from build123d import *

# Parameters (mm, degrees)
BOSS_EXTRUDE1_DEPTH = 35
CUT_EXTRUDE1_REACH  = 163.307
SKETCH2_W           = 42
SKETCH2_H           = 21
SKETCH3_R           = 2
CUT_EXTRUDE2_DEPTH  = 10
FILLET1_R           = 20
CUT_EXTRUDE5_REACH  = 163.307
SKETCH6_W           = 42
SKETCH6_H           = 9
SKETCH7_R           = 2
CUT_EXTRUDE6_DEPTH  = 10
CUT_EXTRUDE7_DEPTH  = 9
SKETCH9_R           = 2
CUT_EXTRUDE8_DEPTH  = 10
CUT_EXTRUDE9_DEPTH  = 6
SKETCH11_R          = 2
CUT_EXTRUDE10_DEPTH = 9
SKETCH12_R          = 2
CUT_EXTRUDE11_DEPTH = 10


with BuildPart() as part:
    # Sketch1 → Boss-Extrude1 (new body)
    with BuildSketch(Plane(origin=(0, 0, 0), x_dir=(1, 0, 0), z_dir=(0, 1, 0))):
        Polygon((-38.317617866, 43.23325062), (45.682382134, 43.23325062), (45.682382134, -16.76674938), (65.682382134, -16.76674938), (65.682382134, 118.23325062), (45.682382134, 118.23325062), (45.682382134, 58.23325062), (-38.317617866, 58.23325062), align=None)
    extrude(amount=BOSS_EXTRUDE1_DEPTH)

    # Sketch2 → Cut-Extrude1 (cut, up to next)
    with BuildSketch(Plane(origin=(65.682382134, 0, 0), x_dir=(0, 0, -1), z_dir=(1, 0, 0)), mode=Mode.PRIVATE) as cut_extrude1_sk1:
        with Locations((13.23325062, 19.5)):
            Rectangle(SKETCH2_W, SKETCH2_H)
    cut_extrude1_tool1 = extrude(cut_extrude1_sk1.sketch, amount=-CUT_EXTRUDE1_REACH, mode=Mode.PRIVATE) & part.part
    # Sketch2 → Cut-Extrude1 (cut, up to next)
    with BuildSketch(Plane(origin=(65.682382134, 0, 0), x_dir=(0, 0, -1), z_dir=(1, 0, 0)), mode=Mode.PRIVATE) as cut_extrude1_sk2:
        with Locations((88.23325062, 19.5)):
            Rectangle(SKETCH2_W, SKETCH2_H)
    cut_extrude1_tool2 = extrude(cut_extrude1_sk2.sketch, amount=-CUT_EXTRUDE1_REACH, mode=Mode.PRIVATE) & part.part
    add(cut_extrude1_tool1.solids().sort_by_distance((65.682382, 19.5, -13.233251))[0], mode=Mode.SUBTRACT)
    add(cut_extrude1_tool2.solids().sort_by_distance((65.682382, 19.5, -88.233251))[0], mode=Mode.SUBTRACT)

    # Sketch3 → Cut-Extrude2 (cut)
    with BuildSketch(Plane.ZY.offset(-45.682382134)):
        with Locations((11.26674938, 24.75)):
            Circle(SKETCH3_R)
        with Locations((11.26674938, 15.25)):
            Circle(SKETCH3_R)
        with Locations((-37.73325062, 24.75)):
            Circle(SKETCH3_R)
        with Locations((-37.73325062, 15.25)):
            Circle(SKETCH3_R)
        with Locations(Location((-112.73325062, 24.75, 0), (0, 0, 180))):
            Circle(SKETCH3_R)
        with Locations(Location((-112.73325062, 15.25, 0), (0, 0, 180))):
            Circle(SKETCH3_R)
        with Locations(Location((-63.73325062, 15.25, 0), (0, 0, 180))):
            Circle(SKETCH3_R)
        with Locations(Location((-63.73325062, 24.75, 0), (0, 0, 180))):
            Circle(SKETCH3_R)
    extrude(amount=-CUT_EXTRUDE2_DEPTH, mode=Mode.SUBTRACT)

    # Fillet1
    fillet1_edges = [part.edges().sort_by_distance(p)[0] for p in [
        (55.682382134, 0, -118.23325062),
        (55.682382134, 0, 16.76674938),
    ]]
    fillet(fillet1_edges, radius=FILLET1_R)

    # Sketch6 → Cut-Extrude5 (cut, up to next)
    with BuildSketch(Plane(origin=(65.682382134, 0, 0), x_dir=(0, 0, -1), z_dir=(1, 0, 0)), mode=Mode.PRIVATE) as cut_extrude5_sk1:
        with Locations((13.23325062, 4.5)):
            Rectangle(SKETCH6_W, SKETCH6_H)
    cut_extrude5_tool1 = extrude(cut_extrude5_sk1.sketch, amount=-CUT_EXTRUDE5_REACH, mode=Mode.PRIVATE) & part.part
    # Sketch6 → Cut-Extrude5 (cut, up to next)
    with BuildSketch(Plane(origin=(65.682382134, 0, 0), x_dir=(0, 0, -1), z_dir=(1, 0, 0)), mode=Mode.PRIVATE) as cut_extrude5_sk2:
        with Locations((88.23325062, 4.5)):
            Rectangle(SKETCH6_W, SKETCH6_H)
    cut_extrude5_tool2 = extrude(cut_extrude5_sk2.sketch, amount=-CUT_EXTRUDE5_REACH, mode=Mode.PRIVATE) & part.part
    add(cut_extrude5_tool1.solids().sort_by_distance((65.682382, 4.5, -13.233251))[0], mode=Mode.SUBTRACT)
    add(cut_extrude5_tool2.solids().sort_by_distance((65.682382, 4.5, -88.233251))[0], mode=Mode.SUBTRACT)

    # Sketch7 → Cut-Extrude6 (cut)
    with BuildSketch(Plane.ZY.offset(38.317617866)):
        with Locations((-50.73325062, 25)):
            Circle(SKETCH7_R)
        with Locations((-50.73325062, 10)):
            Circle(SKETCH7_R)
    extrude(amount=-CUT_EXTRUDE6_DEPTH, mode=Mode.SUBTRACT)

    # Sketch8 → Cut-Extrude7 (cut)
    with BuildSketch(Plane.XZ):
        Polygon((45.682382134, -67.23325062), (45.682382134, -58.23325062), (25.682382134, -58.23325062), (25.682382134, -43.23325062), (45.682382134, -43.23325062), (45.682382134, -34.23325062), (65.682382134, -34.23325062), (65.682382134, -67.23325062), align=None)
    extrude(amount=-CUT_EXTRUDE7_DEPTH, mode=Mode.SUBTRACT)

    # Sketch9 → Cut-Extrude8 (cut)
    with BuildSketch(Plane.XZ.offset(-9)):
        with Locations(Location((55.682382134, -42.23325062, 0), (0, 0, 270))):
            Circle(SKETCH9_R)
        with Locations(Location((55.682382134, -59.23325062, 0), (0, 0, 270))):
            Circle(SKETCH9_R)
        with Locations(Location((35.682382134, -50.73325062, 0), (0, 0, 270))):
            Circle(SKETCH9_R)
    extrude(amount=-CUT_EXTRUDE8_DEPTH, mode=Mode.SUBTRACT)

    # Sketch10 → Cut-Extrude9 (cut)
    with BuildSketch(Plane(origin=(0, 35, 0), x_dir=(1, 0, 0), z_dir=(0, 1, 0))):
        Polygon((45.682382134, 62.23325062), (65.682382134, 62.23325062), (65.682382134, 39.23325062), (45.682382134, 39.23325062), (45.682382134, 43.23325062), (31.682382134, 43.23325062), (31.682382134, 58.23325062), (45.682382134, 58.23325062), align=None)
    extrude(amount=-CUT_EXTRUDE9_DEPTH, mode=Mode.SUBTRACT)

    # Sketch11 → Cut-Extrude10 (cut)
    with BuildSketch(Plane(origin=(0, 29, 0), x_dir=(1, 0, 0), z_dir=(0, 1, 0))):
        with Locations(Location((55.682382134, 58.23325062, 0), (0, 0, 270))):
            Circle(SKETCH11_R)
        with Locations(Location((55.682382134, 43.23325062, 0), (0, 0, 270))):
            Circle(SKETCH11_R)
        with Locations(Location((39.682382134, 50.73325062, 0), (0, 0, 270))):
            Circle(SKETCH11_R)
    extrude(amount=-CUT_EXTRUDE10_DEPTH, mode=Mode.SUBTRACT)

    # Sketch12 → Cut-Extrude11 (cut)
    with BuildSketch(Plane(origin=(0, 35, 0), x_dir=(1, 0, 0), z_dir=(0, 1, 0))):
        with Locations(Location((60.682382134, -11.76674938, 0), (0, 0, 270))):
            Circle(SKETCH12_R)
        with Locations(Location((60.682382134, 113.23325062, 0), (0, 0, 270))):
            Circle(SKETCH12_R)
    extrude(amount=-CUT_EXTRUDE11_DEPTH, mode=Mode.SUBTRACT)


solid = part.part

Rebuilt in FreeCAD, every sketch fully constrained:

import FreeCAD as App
import Part
import Sketcher

V = App.Vector


def edges_at(feature, points):
    """Names of the edges that pass closest to the given points."""
    edges = feature.Shape.Edges
    near = lambda p: min(range(len(edges)), key=lambda i: edges[i].distToShape(Part.Vertex(*p))[0])
    return sorted({f"Edge{near(p) + 1}" for p in points})


def add_polygon(sketch, points):
    """Adds a closed chain of lines whose ends are joined by coincident constraints."""
    first, n = sketch.GeometryCount, len(points)
    for a, b in zip(points, points[1:] + points[:1]):
        sketch.addGeometry(Part.LineSegment(App.Vector(*a, 0), App.Vector(*b, 0)), False)
    for i in range(n):
        sketch.addConstraint(Sketcher.Constraint("Coincident", first + i, 2, first + (i + 1) % n, 1))

doc = App.newDocument("Part")
body = doc.addObject("PartDesign::Body", "Body")

# Sketch on XZ plane
sketch1 = doc.addObject("Sketcher::SketchObject", "Sketch")
body.addObject(sketch1)
sketch1.AttachmentSupport = (doc.XZ_Plane, [""])
sketch1.MapMode = "FlatFace"
add_polygon(sketch1, [(-38, -43), (46, -43), (46, 17), (66, 17), (66, -118), (46, -118), (46, -58), (-38, -58)])  # lines 0-7
sketch1.addConstraint(Sketcher.Constraint("Horizontal", 0))
sketch1.addConstraint(Sketcher.Constraint("Vertical", 1))
sketch1.addConstraint(Sketcher.Constraint("Horizontal", 2))
sketch1.addConstraint(Sketcher.Constraint("Vertical", 3))
sketch1.addConstraint(Sketcher.Constraint("Horizontal", 4))
sketch1.addConstraint(Sketcher.Constraint("Vertical", 5))
sketch1.addConstraint(Sketcher.Constraint("Horizontal", 6))
sketch1.addConstraint(Sketcher.Constraint("Vertical", 7))
sketch1.addConstraint(Sketcher.Constraint("Vertical", 1, 2, 4, 2))
sketch1.addConstraint(Sketcher.Constraint("Equal", 1, 5))
sketch1.addConstraint(Sketcher.Constraint("DistanceX", 0, 1, 0, 2, 84.0))
sketch1.addConstraint(Sketcher.Constraint("DistanceX", 2, 1, 2, 2, 20.0))
sketch1.addConstraint(Sketcher.Constraint("DistanceY", 1, 1, 1, 2, 60.0))
sketch1.addConstraint(Sketcher.Constraint("DistanceY", 3, 2, 3, 1, 135.0))
sketch1.addConstraint(Sketcher.Constraint("DistanceY", 0, 2, -1, 1, 43.233251))
sketch1.addConstraint(Sketcher.Constraint("DistanceX", -1, 1, 0, 2, 45.682382))
pad1 = doc.addObject("PartDesign::Pad", "Pad")
body.addObject(pad1)
pad1.Profile = sketch1
pad1.Length = 35
pad1.Reversed = True

# Sketch on YZ plane
sketch2 = doc.addObject("Sketcher::SketchObject", "Sketch001")
body.addObject(sketch2)
sketch2.AttachmentSupport = (doc.YZ_Plane, [""])
sketch2.MapMode = "FlatFace"
sketch2.AttachmentOffset = App.Placement(V(0, 0, 65.682382), App.Rotation())
add_polygon(sketch2, [(30, 8), (9, 8), (9, -34), (30, -34)])  # lines 0-3
sketch2.addConstraint(Sketcher.Constraint("Horizontal", 0))
sketch2.addConstraint(Sketcher.Constraint("Vertical", 1))
sketch2.addConstraint(Sketcher.Constraint("Horizontal", 2))
sketch2.addConstraint(Sketcher.Constraint("Vertical", 3))
sketch2.addConstraint(Sketcher.Constraint("DistanceX", 0, 2, 0, 1, 21.0))
sketch2.addConstraint(Sketcher.Constraint("DistanceY", 1, 2, 1, 1, 42.0))
sketch2.addConstraint(Sketcher.Constraint("DistanceX", -1, 1, 0, 2, 9.0))
sketch2.addConstraint(Sketcher.Constraint("DistanceY", -1, 1, 0, 2, 7.766749))
pocket1 = doc.addObject("PartDesign::Pocket", "Pocket")
body.addObject(pocket1)
pocket1.Profile = sketch2
pocket1.Type = "UpToFirst"

# Sketch on YZ plane
sketch3 = doc.addObject("Sketcher::SketchObject", "Sketch002")
body.addObject(sketch3)
sketch3.AttachmentSupport = (doc.YZ_Plane, [""])
sketch3.MapMode = "FlatFace"
sketch3.AttachmentOffset = App.Placement(V(0, 0, 65.682382), App.Rotation())
add_polygon(sketch3, [(30, -67), (9, -67), (9, -109), (30, -109)])  # lines 0-3
sketch3.addConstraint(Sketcher.Constraint("Horizontal", 0))
sketch3.addConstraint(Sketcher.Constraint("Vertical", 1))
sketch3.addConstraint(Sketcher.Constraint("Horizontal", 2))
sketch3.addConstraint(Sketcher.Constraint("Vertical", 3))
sketch3.addConstraint(Sketcher.Constraint("DistanceX", 0, 2, 0, 1, 21.0))
sketch3.addConstraint(Sketcher.Constraint("DistanceY", 1, 2, 1, 1, 42.0))
sketch3.addConstraint(Sketcher.Constraint("DistanceX", -1, 1, 0, 2, 9.0))
sketch3.addConstraint(Sketcher.Constraint("DistanceY", 0, 2, -1, 1, 67.233251))
pocket2 = doc.addObject("PartDesign::Pocket", "Pocket001")
body.addObject(pocket2)
pocket2.Profile = sketch3
pocket2.Type = "UpToFirst"

# Sketch on YZ plane
sketch4 = doc.addObject("Sketcher::SketchObject", "Sketch003")
body.addObject(sketch4)
sketch4.AttachmentSupport = (doc.YZ_Plane, [""])
sketch4.MapMode = "FlatFace"
sketch4.AttachmentOffset = App.Placement(V(0, 0, 45.682382), App.Rotation())
sketch4.addGeometry(Part.Circle(V(24.8, 11.3, 0), V(0, 0, 1), 2), False)
sketch4.addGeometry(Part.Circle(V(15.2, 11.3, 0), V(0, 0, 1), 2), False)
sketch4.addGeometry(Part.Circle(V(24.8, -37.7, 0), V(0, 0, 1), 2), False)
sketch4.addGeometry(Part.Circle(V(15.2, -37.7, 0), V(0, 0, 1), 2), False)
sketch4.addGeometry(Part.Circle(V(24.8, -112.7, 0), V(0, 0, 1), 2), False)
sketch4.addGeometry(Part.Circle(V(15.2, -112.7, 0), V(0, 0, 1), 2), False)
sketch4.addGeometry(Part.Circle(V(15.2, -63.7, 0), V(0, 0, 1), 2), False)
sketch4.addGeometry(Part.Circle(V(24.8, -63.7, 0), V(0, 0, 1), 2), False)
sketch4.addConstraint(Sketcher.Constraint("Equal", 0, 1))
sketch4.addConstraint(Sketcher.Constraint("Equal", 1, 2))
sketch4.addConstraint(Sketcher.Constraint("Equal", 2, 3))
sketch4.addConstraint(Sketcher.Constraint("Equal", 3, 4))
sketch4.addConstraint(Sketcher.Constraint("Equal", 4, 5))
sketch4.addConstraint(Sketcher.Constraint("Equal", 5, 6))
sketch4.addConstraint(Sketcher.Constraint("Equal", 6, 7))
sketch4.addConstraint(Sketcher.Constraint("Horizontal", 0, 3, 1, 3))
sketch4.addConstraint(Sketcher.Constraint("Horizontal", 2, 3, 3, 3))
sketch4.addConstraint(Sketcher.Constraint("Horizontal", 4, 3, 5, 3))
sketch4.addConstraint(Sketcher.Constraint("Horizontal", 6, 3, 7, 3))
sketch4.addConstraint(Sketcher.Constraint("Vertical", 0, 3, 2, 3))
sketch4.addConstraint(Sketcher.Constraint("Vertical", 1, 3, 3, 3))
sketch4.addConstraint(Sketcher.Constraint("Vertical", 2, 3, 4, 3))
sketch4.addConstraint(Sketcher.Constraint("Vertical", 3, 3, 5, 3))
sketch4.addConstraint(Sketcher.Constraint("Vertical", 5, 3, 6, 3))
sketch4.addConstraint(Sketcher.Constraint("Vertical", 4, 3, 7, 3))
sketch4.addConstraint(Sketcher.Constraint("Diameter", 0, 4.0))
sketch4.addConstraint(Sketcher.Constraint("DistanceY", 2, 3, 0, 3, 49.0))
sketch4.addConstraint(Sketcher.Constraint("DistanceY", 4, 3, 2, 3, 75.0))
sketch4.addConstraint(Sketcher.Constraint("DistanceY", 6, 3, 3, 3, 26.0))
sketch4.addConstraint(Sketcher.Constraint("DistanceX", 1, 3, 0, 3, 9.5))
sketch4.addConstraint(Sketcher.Constraint("DistanceX", -1, 1, 0, 3, 24.75))
sketch4.addConstraint(Sketcher.Constraint("DistanceY", -1, 1, 0, 3, 11.266749))
pocket3 = doc.addObject("PartDesign::Pocket", "Pocket002")
body.addObject(pocket3)
pocket3.Profile = sketch4
pocket3.Length = 10
pocket3.Reversed = True
doc.recompute()

fillet = doc.addObject("PartDesign::Fillet", "Fillet")
body.addObject(fillet)
fillet.Base = (pocket3, edges_at(pocket3, [(55.682, 0, -118.233), (55.682, 0, 16.767)]))
fillet.Radius = 20

# Sketch on YZ plane
sketch5 = doc.addObject("Sketcher::SketchObject", "Sketch004")
body.addObject(sketch5)
sketch5.AttachmentSupport = (doc.YZ_Plane, [""])
sketch5.MapMode = "FlatFace"
sketch5.AttachmentOffset = App.Placement(V(0, 0, 65.682382), App.Rotation())
add_polygon(sketch5, [(9, 8), (0, 8), (0, -34), (9, -34)])  # lines 0-3
sketch5.addConstraint(Sketcher.Constraint("Horizontal", 0))
sketch5.addConstraint(Sketcher.Constraint("Vertical", 1))
sketch5.addConstraint(Sketcher.Constraint("Horizontal", 2))
sketch5.addConstraint(Sketcher.Constraint("Vertical", 3))
sketch5.addConstraint(Sketcher.Constraint("PointOnObject", 0, 2, -2))
sketch5.addConstraint(Sketcher.Constraint("DistanceX", 0, 2, 0, 1, 9.0))
sketch5.addConstraint(Sketcher.Constraint("DistanceY", 1, 2, 1, 1, 42.0))
sketch5.addConstraint(Sketcher.Constraint("DistanceY", -1, 1, 0, 2, 7.766749))
pocket4 = doc.addObject("PartDesign::Pocket", "Pocket003")
body.addObject(pocket4)
pocket4.Profile = sketch5
pocket4.Type = "UpToFirst"

# Sketch on YZ plane
sketch6 = doc.addObject("Sketcher::SketchObject", "Sketch005")
body.addObject(sketch6)
sketch6.AttachmentSupport = (doc.YZ_Plane, [""])
sketch6.MapMode = "FlatFace"
sketch6.AttachmentOffset = App.Placement(V(0, 0, 65.682382), App.Rotation())
add_polygon(sketch6, [(9, -67), (0, -67), (0, -109), (9, -109)])  # lines 0-3
sketch6.addConstraint(Sketcher.Constraint("Horizontal", 0))
sketch6.addConstraint(Sketcher.Constraint("Vertical", 1))
sketch6.addConstraint(Sketcher.Constraint("Horizontal", 2))
sketch6.addConstraint(Sketcher.Constraint("Vertical", 3))
sketch6.addConstraint(Sketcher.Constraint("PointOnObject", 0, 2, -2))
sketch6.addConstraint(Sketcher.Constraint("DistanceX", 0, 2, 0, 1, 9.0))
sketch6.addConstraint(Sketcher.Constraint("DistanceY", 1, 2, 1, 1, 42.0))
sketch6.addConstraint(Sketcher.Constraint("DistanceY", 0, 2, -1, 1, 67.233251))
pocket5 = doc.addObject("PartDesign::Pocket", "Pocket004")
body.addObject(pocket5)
pocket5.Profile = sketch6
pocket5.Type = "UpToFirst"

# Sketch on YZ plane
sketch7 = doc.addObject("Sketcher::SketchObject", "Sketch006")
body.addObject(sketch7)
sketch7.AttachmentSupport = (doc.YZ_Plane, [""])
sketch7.MapMode = "FlatFace"
sketch7.AttachmentOffset = App.Placement(V(0, 0, -38.317618), App.Rotation())
sketch7.addGeometry(Part.Circle(V(25, -50.7, 0), V(0, 0, 1), 2), False)
sketch7.addGeometry(Part.Circle(V(10, -50.7, 0), V(0, 0, 1), 2), False)
sketch7.addConstraint(Sketcher.Constraint("Equal", 0, 1))
sketch7.addConstraint(Sketcher.Constraint("Horizontal", 0, 3, 1, 3))
sketch7.addConstraint(Sketcher.Constraint("Diameter", 0, 4.0))
sketch7.addConstraint(Sketcher.Constraint("DistanceX", -1, 1, 0, 3, 25.0))
sketch7.addConstraint(Sketcher.Constraint("DistanceX", -1, 1, 1, 3, 10.0))
sketch7.addConstraint(Sketcher.Constraint("DistanceY", 0, 3, -1, 1, 50.733251))
pocket6 = doc.addObject("PartDesign::Pocket", "Pocket005")
body.addObject(pocket6)
pocket6.Profile = sketch7
pocket6.Length = 10
pocket6.Reversed = True

# Sketch on XZ plane
sketch8 = doc.addObject("Sketcher::SketchObject", "Sketch007")
body.addObject(sketch8)
sketch8.AttachmentSupport = (doc.XZ_Plane, [""])
sketch8.MapMode = "FlatFace"
add_polygon(sketch8, [(46, -58), (46, -67), (66, -67), (66, -34), (46, -34), (46, -43), (26, -43), (26, -58)])  # lines 0-7
sketch8.addConstraint(Sketcher.Constraint("Vertical", 0))
sketch8.addConstraint(Sketcher.Constraint("Horizontal", 1))
sketch8.addConstraint(Sketcher.Constraint("Vertical", 2))
sketch8.addConstraint(Sketcher.Constraint("Horizontal", 3))
sketch8.addConstraint(Sketcher.Constraint("Vertical", 4))
sketch8.addConstraint(Sketcher.Constraint("Horizontal", 5))
sketch8.addConstraint(Sketcher.Constraint("Vertical", 6))
sketch8.addConstraint(Sketcher.Constraint("Horizontal", 7))
sketch8.addConstraint(Sketcher.Constraint("Vertical", 0, 2, 3, 2))
sketch8.addConstraint(Sketcher.Constraint("Equal", 3, 5))
sketch8.addConstraint(Sketcher.Constraint("Equal", 0, 4))
sketch8.addConstraint(Sketcher.Constraint("DistanceX", 1, 1, 1, 2, 20.0))
sketch8.addConstraint(Sketcher.Constraint("DistanceY", 0, 2, 0, 1, 9.0))
sketch8.addConstraint(Sketcher.Constraint("DistanceY", 2, 1, 2, 2, 33.0))
sketch8.addConstraint(Sketcher.Constraint("DistanceY", 0, 2, -1, 1, 67.233251))
sketch8.addConstraint(Sketcher.Constraint("DistanceX", -1, 1, 0, 2, 45.682382))
pocket7 = doc.addObject("PartDesign::Pocket", "Pocket006")
body.addObject(pocket7)
pocket7.Profile = sketch8
pocket7.Length = 9

# Sketch on XZ plane
sketch9 = doc.addObject("Sketcher::SketchObject", "Sketch008")
body.addObject(sketch9)
sketch9.AttachmentSupport = (doc.XZ_Plane, [""])
sketch9.MapMode = "FlatFace"
sketch9.AttachmentOffset = App.Placement(V(0, 0, -9), App.Rotation())
sketch9.addGeometry(Part.Circle(V(55.7, -42.2, 0), V(0, 0, 1), 2), False)
sketch9.addGeometry(Part.Circle(V(55.7, -59.2, 0), V(0, 0, 1), 2), False)
sketch9.addGeometry(Part.Circle(V(35.7, -50.7, 0), V(0, 0, 1), 2), False)
sketch9.addConstraint(Sketcher.Constraint("Equal", 0, 1))
sketch9.addConstraint(Sketcher.Constraint("Equal", 1, 2))
sketch9.addConstraint(Sketcher.Constraint("Vertical", 0, 3, 1, 3))
sketch9.addConstraint(Sketcher.Constraint("Diameter", 0, 4.0))
sketch9.addConstraint(Sketcher.Constraint("DistanceY", 1, 3, 0, 3, 17.0))
sketch9.addConstraint(Sketcher.Constraint("DistanceX", 2, 3, 0, 3, 20.0))
sketch9.addConstraint(Sketcher.Constraint("DistanceY", 2, 3, 0, 3, 8.5))
sketch9.addConstraint(Sketcher.Constraint("DistanceY", 0, 3, -1, 1, 42.233251))
sketch9.addConstraint(Sketcher.Constraint("DistanceX", -1, 1, 0, 3, 55.682382))
pocket8 = doc.addObject("PartDesign::Pocket", "Pocket007")
body.addObject(pocket8)
pocket8.Profile = sketch9
pocket8.Length = 10

# Sketch on XZ plane
sketch10 = doc.addObject("Sketcher::SketchObject", "Sketch009")
body.addObject(sketch10)
sketch10.AttachmentSupport = (doc.XZ_Plane, [""])
sketch10.MapMode = "FlatFace"
sketch10.AttachmentOffset = App.Placement(V(0, 0, -35), App.Rotation())
add_polygon(sketch10, [(65.7, -62.2), (45.7, -62.2), (45.7, -58.2), (31.7, -58.2), (31.7, -43.2), (45.7, -43.2), (45.7, -39.2), (65.7, -39.2)])  # lines 0-7
sketch10.addConstraint(Sketcher.Constraint("Horizontal", 0))
sketch10.addConstraint(Sketcher.Constraint("Vertical", 1))
sketch10.addConstraint(Sketcher.Constraint("Horizontal", 2))
sketch10.addConstraint(Sketcher.Constraint("Vertical", 3))
sketch10.addConstraint(Sketcher.Constraint("Horizontal", 4))
sketch10.addConstraint(Sketcher.Constraint("Vertical", 5))
sketch10.addConstraint(Sketcher.Constraint("Horizontal", 6))
sketch10.addConstraint(Sketcher.Constraint("Vertical", 7))
sketch10.addConstraint(Sketcher.Constraint("Vertical", 1, 2, 4, 2))
sketch10.addConstraint(Sketcher.Constraint("Equal", 1, 5))
sketch10.addConstraint(Sketcher.Constraint("DistanceX", 0, 2, 0, 1, 20.0))
sketch10.addConstraint(Sketcher.Constraint("DistanceX", 2, 2, 2, 1, 14.0))
sketch10.addConstraint(Sketcher.Constraint("DistanceY", 1, 1, 1, 2, 4.0))
sketch10.addConstraint(Sketcher.Constraint("DistanceY", 3, 1, 3, 2, 15.0))
sketch10.addConstraint(Sketcher.Constraint("DistanceY", 0, 2, -1, 1, 62.233251))
sketch10.addConstraint(Sketcher.Constraint("DistanceX", -1, 1, 0, 2, 45.682382))
pocket9 = doc.addObject("PartDesign::Pocket", "Pocket008")
body.addObject(pocket9)
pocket9.Profile = sketch10
pocket9.Length = 6
pocket9.Reversed = True

# Sketch on XZ plane
sketch11 = doc.addObject("Sketcher::SketchObject", "Sketch010")
body.addObject(sketch11)
sketch11.AttachmentSupport = (doc.XZ_Plane, [""])
sketch11.MapMode = "FlatFace"
sketch11.AttachmentOffset = App.Placement(V(0, 0, -29), App.Rotation())
sketch11.addGeometry(Part.Circle(V(55.7, -58.2, 0), V(0, 0, 1), 2), False)
sketch11.addGeometry(Part.Circle(V(55.7, -43.2, 0), V(0, 0, 1), 2), False)
sketch11.addGeometry(Part.Circle(V(39.7, -50.7, 0), V(0, 0, 1), 2), False)
sketch11.addConstraint(Sketcher.Constraint("Equal", 0, 1))
sketch11.addConstraint(Sketcher.Constraint("Equal", 1, 2))
sketch11.addConstraint(Sketcher.Constraint("Vertical", 0, 3, 1, 3))
sketch11.addConstraint(Sketcher.Constraint("Diameter", 0, 4.0))
sketch11.addConstraint(Sketcher.Constraint("DistanceY", 0, 3, 1, 3, 15.0))
sketch11.addConstraint(Sketcher.Constraint("DistanceX", 2, 3, 0, 3, 16.0))
sketch11.addConstraint(Sketcher.Constraint("DistanceY", 0, 3, 2, 3, 7.5))
sketch11.addConstraint(Sketcher.Constraint("DistanceY", 0, 3, -1, 1, 58.233251))
sketch11.addConstraint(Sketcher.Constraint("DistanceX", -1, 1, 0, 3, 55.682382))
pocket10 = doc.addObject("PartDesign::Pocket", "Pocket009")
body.addObject(pocket10)
pocket10.Profile = sketch11
pocket10.Length = 9
pocket10.Reversed = True

# Sketch on XZ plane
sketch12 = doc.addObject("Sketcher::SketchObject", "Sketch011")
body.addObject(sketch12)
sketch12.AttachmentSupport = (doc.XZ_Plane, [""])
sketch12.MapMode = "FlatFace"
sketch12.AttachmentOffset = App.Placement(V(0, 0, -35), App.Rotation())
sketch12.addGeometry(Part.Circle(V(60.7, 11.8, 0), V(0, 0, 1), 2), False)
sketch12.addGeometry(Part.Circle(V(60.7, -113.2, 0), V(0, 0, 1), 2), False)
sketch12.addConstraint(Sketcher.Constraint("Equal", 0, 1))
sketch12.addConstraint(Sketcher.Constraint("Vertical", 0, 3, 1, 3))
sketch12.addConstraint(Sketcher.Constraint("Diameter", 0, 4.0))
sketch12.addConstraint(Sketcher.Constraint("DistanceY", 1, 3, 0, 3, 125.0))
sketch12.addConstraint(Sketcher.Constraint("DistanceY", -1, 1, 0, 3, 11.766749))
sketch12.addConstraint(Sketcher.Constraint("DistanceX", -1, 1, 0, 3, 60.682382))
pocket11 = doc.addObject("PartDesign::Pocket", "Pocket010")
body.addObject(pocket11)
pocket11.Profile = sketch12
pocket11.Length = 10
pocket11.Reversed = True

doc.recompute()
